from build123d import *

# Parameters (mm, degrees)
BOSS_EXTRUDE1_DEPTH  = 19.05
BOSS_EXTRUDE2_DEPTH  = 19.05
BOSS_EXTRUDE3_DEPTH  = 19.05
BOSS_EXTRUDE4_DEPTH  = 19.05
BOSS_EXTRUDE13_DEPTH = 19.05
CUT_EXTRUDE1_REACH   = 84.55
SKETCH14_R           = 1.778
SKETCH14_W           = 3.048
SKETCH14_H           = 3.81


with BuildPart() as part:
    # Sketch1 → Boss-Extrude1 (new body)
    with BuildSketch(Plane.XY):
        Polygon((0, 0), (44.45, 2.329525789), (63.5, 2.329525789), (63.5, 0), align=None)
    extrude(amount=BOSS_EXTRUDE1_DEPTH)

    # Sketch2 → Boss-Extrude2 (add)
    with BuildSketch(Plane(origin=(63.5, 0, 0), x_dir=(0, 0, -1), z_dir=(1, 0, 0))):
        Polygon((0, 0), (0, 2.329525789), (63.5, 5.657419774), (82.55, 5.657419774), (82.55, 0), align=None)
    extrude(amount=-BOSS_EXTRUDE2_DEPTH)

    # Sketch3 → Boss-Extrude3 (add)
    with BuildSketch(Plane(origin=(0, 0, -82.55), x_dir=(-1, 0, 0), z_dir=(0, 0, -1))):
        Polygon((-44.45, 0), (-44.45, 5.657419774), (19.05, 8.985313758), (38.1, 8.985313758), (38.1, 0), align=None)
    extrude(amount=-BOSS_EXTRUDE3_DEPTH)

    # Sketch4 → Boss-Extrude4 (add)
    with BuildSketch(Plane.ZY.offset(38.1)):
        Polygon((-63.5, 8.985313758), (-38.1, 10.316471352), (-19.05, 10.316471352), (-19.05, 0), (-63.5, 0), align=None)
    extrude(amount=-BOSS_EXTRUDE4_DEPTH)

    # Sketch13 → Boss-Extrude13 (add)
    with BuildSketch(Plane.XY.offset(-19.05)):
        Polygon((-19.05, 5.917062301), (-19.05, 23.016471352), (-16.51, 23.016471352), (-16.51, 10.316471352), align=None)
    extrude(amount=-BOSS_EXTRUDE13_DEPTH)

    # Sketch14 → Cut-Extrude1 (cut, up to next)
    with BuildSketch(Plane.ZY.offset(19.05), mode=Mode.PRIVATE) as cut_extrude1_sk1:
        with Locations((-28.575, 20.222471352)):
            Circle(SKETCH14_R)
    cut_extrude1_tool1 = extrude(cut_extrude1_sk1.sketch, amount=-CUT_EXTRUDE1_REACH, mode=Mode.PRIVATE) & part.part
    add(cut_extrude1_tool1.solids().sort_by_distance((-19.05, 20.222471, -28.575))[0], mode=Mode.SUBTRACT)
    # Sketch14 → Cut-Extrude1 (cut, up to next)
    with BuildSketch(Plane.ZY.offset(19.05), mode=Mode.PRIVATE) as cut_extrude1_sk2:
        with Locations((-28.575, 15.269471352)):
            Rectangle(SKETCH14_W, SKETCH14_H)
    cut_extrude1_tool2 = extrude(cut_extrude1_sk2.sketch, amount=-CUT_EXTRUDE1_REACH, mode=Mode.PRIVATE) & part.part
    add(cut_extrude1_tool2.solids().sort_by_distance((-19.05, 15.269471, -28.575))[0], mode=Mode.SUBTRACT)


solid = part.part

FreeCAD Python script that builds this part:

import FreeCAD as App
import Part
import Sketcher
from FreeCAD import Vector
Q = App.Units.Quantity

doc = App.newDocument("Part")
body = doc.addObject("PartDesign::Body", "Body")

sketch1 = doc.addObject("Sketcher::SketchObject", "Sketch")
body.addObject(sketch1)
sketch1.AttachmentSupport = (doc.XY_Plane, [""])
sketch1.MapMode = "FlatFace"
sketch1.addGeometry([
    Part.LineSegment(Vector(44.5, 2.3, 0), Vector(0, 0, 0)),
    Part.LineSegment(Vector(0, 0, 0), Vector(63.5, 0, 0)),
    Part.LineSegment(Vector(63.5, 0, 0), Vector(63.5, 2.3, 0)),
    Part.LineSegment(Vector(63.5, 2.3, 0), Vector(44.5, 2.3, 0)),
], False)
sketch1.addConstraint([
    Sketcher.Constraint("Coincident", 0, 2, 1, 1),
    Sketcher.Constraint("Coincident", 1, 2, 2, 1),
    Sketcher.Constraint("Coincident", 2, 2, 3, 1),
    Sketcher.Constraint("Coincident", 3, 2, 0, 1),
    Sketcher.Constraint("Horizontal", 1),
    Sketcher.Constraint("Vertical", 2),
    Sketcher.Constraint("Horizontal", 3),
    Sketcher.Constraint("Coincident", 0, 2, -1, 1),
    Sketcher.Constraint("DistanceX", 1, 1, 1, 2, Q("2.5 in")),
    Sketcher.Constraint("Angle", 0, Q("-177 deg")),
    Sketcher.Constraint("DistanceX", 3, 2, 3, 1, Q("0.75 in")),
])
pad1 = doc.addObject("PartDesign::Pad", "Pad")
body.addObject(pad1)
pad1.Profile = sketch1
pad1.Length = Q("0.75 in")

sketch2 = doc.addObject("Sketcher::SketchObject", "Sketch001")
body.addObject(sketch2)
sketch2.AttachmentSupport = (doc.YZ_Plane, [""])
sketch2.MapMode = "FlatFace"
sketch2.AttachmentOffset = App.Placement(Vector(0, 0, 2.5 * 25.4), App.Rotation())
sketch2.addGeometry([
    Part.LineSegment(Vector(2.3, 0, 0), Vector(0, 0, 0)),
    Part.LineSegment(Vector(0, 0, 0), Vector(0, -82.5, 0)),
    Part.LineSegment(Vector(0, -82.5, 0), Vector(5.7, -82.5, 0)),
    Part.LineSegment(Vector(5.7, -82.5, 0), Vector(5.7, -63.5, 0)),
    Part.LineSegment(Vector(5.7, -63.5, 0), Vector(2.3, 0, 0)),
], False)
sketch2.addConstraint([
    Sketcher.Constraint("Coincident", 0, 2, 1, 1),
    Sketcher.Constraint("Coincident", 1, 2, 2, 1),
    Sketcher.Constraint("Coincident", 2, 2, 3, 1),
    Sketcher.Constraint("Coincident", 3, 2, 4, 1),
    Sketcher.Constraint("Coincident", 4, 2, 0, 1),
    Sketcher.Constraint("Horizontal", 0),
    Sketcher.Constraint("Vertical", 1),
    Sketcher.Constraint("Horizontal", 2),
    Sketcher.Constraint("Vertical", 3),
    Sketcher.Constraint("Coincident", 0, 2, -1, 1),
    Sketcher.Constraint("Angle", 4, Q("93 deg")),
    Sketcher.Constraint("DistanceY", 1, 2, 1, 1, Q("3.25 in")),
    Sketcher.Constraint("DistanceY", 3, 1, 3, 2, Q("0.75 in")),
    Sketcher.Constraint("DistanceX", 2, 1, 2, 2, 5.65742),
])
pad2 = doc.addObject("PartDesign::Pad", "Pad001")
body.addObject(pad2)
pad2.Profile = sketch2
pad2.Length = Q("0.75 in")
pad2.Reversed = True

sketch3 = doc.addObject("Sketcher::SketchObject", "Sketch002")
body.addObject(sketch3)
sketch3.AttachmentSupport = (doc.XY_Plane, [""])
sketch3.MapMode = "FlatFace"
sketch3.AttachmentOffset = App.Placement(Vector(0, 0, -3.25 * 25.4), App.Rotation())
sketch3.addGeometry([
    Part.LineSegment(Vector(44, 6, 0), Vector(44, 0, 0)),
    Part.LineSegment(Vector(44, 0, 0), Vector(-38, 0, 0)),
    Part.LineSegment(Vector(-38, 0, 0), Vector(-38, 9, 0)),
    Part.LineSegment(Vector(-38, 9, 0), Vector(-19, 9, 0)),
    Part.LineSegment(Vector(-19, 9, 0), Vector(44, 6, 0)),
], False)
sketch3.addConstraint([
    Sketcher.Constraint("Coincident", 0, 2, 1, 1),
    Sketcher.Constraint("Coincident", 1, 2, 2, 1),
    Sketcher.Constraint("Coincident", 2, 2, 3, 1),
    Sketcher.Constraint("Coincident", 3, 2, 4, 1),
    Sketcher.Constraint("Coincident", 4, 2, 0, 1),
    Sketcher.Constraint("Vertical", 0),
    Sketcher.Constraint("Horizontal", 1),
    Sketcher.Constraint("Vertical", 2),
    Sketcher.Constraint("Horizontal", 3),
    Sketcher.Constraint("PointOnObject", 0, 2, -1),
    Sketcher.Constraint("Angle", 4, Q("-3 deg")),
    Sketcher.Constraint("DistanceX", 1, 2, 1, 1, Q("3.25 in")),
    Sketcher.Constraint("DistanceX", 3, 1, 3, 2, Q("0.75 in")),
    Sketcher.Constraint("DistanceX", 1, 2, -1, 1, Q("1.5 in")),
    Sketcher.Constraint("DistanceY", 0, 2, 0, 1, 5.65742),
])
pad3 = doc.addObject("PartDesign::Pad", "Pad002")
body.addObject(pad3)
pad3.Profile = sketch3
pad3.Length = Q("0.75 in")

sketch4 = doc.addObject("Sketcher::SketchObject", "Sketch003")
body.addObject(sketch4)
sketch4.AttachmentSupport = (doc.YZ_Plane, [""])
sketch4.MapMode = "FlatFace"
sketch4.AttachmentOffset = App.Placement(Vector(0, 0, -1.5 * 25.4), App.Rotation())
sketch4.addGeometry([
    Part.LineSegment(Vector(10, -38, 0), Vector(9, -64, 0)),
    Part.LineSegment(Vector(9, -64, 0), Vector(0, -64, 0)),
    Part.LineSegment(Vector(0, -64, 0), Vector(0, -19, 0)),
    Part.LineSegment(Vector(0, -19, 0), Vector(10, -19, 0)),
    Part.LineSegment(Vector(10, -19, 0), Vector(10, -38, 0)),
], False)
sketch4.addConstraint([
    Sketcher.Constraint("Coincident", 0, 2, 1, 1),
    Sketcher.Constraint("Coincident", 1, 2, 2, 1),
    Sketcher.Constraint("Coincident", 2, 2, 3, 1),
    Sketcher.Constraint("Coincident", 3, 2, 4, 1),
    Sketcher.Constraint("Coincident", 4, 2, 0, 1),
    Sketcher.Constraint("Horizontal", 1),
    Sketcher.Constraint("Vertical", 2),
    Sketcher.Constraint("Horizontal", 3),
    Sketcher.Constraint("Vertical", 4),
    Sketcher.Constraint("PointOnObject", 1, 2, -2),
    Sketcher.Constraint("Angle", 0, Q("-93 deg")),
    Sketcher.Constraint("DistanceY", 0, 2, 4, 2, Q("1 in")),
    Sketcher.Constraint("DistanceY", 2, 1, 2, 2, Q("1.75 in")),
    Sketcher.Constraint("DistanceY", 0, 2, -1, 1, Q("2.5 in")),
    Sketcher.Constraint("DistanceX", 3, 1, 3, 2, 10.316471),
])
pad4 = doc.addObject("PartDesign::Pad", "Pad003")
body.addObject(pad4)
pad4.Profile = sketch4
pad4.Length = Q("0.75 in")

sketch5 = doc.addObject("Sketcher::SketchObject", "Sketch004")
body.addObject(sketch5)
sketch5.AttachmentSupport = (doc.XY_Plane, [""])
sketch5.MapMode = "FlatFace"
sketch5.AttachmentOffset = App.Placement(Vector(0, 0, -0.75 * 25.4), App.Rotation())
sketch5.addGeometry([
    Part.LineSegment(Vector(-19.1, 23, 0), Vector(-19.1, 5.9, 0)),
    Part.LineSegment(Vector(-19.1, 5.9, 0), Vector(-16.5, 10.3, 0)),
    Part.LineSegment(Vector(-16.5, 10.3, 0), Vector(-16.5, 23, 0)),
    Part.LineSegment(Vector(-16.5, 23, 0), Vector(-19.1, 23, 0)),
], False)
sketch5.addConstraint([
    Sketcher.Constraint("Coincident", 0, 2, 1, 1),
    Sketcher.Constraint("Coincident", 1, 2, 2, 1),
    Sketcher.Constraint("Coincident", 2, 2, 3, 1),
    Sketcher.Constraint("Coincident", 3, 2, 0, 1),
    Sketcher.Constraint("Vertical", 0),
    Sketcher.Constraint("Vertical", 2),
    Sketcher.Constraint("Horizontal", 3),
    Sketcher.Constraint("DistanceX", 3, 2, 3, 1, Q("0.1 in")),
    Sketcher.Constraint("DistanceY", 2, 1, 2, 2, Q("0.5 in")),
    Sketcher.Constraint("Angle", 1, Q("60 deg")),
    Sketcher.Constraint("DistanceX", 0, 2, -1, 1, Q("0.75 in")),
    Sketcher.Constraint("DistanceY", -1, 1, 1, 2, 10.316471),
])
pad5 = doc.addObject("PartDesign::Pad", "Pad004")
body.addObject(pad5)
pad5.Profile = sketch5
pad5.Length = Q("0.75 in")
pad5.Reversed = True

sketch6 = doc.addObject("Sketcher::SketchObject", "Sketch005")
body.addObject(sketch6)
sketch6.AttachmentSupport = (doc.YZ_Plane, [""])
sketch6.MapMode = "FlatFace"
sketch6.AttachmentOffset = App.Placement(Vector(0, 0, -0.75 * 25.4), App.Rotation())
sketch6.addGeometry(Part.Circle(Vector(20.2, -28.6, 0), Vector(0, 0, 1), 1.8), False)
sketch6.addConstraint([
    Sketcher.Constraint("Diameter", 0, Q("0.14 in")),
    Sketcher.Constraint("DistanceY", 0, 3, -1, 1, Q("1.125 in")),
    Sketcher.Constraint("DistanceX", -1, 1, 0, 3, 20.222471),
])
pocket1 = doc.addObject("PartDesign::Pocket", "Pocket")
body.addObject(pocket1)
pocket1.Profile = sketch6
pocket1.Type = "UpToFirst"
pocket1.Reversed = True

sketch7 = doc.addObject("Sketcher::SketchObject", "Sketch006")
body.addObject(sketch7)
sketch7.AttachmentSupport = (doc.YZ_Plane, [""])
sketch7.MapMode = "FlatFace"
sketch7.AttachmentOffset = App.Placement(Vector(0, 0, -0.75 * 25.4), App.Rotation())
sketch7.addGeometry([
    Part.LineSegment(Vector(17.2, -30.1, 0), Vector(13.4, -30.1, 0)),
    Part.LineSegment(Vector(13.4, -30.1, 0), Vector(13.4, -27.1, 0)),
    Part.LineSegment(Vector(13.4, -27.1, 0), Vector(17.2, -27.1, 0)),
    Part.LineSegment(Vector(17.2, -27.1, 0), Vector(17.2, -30.1, 0)),
], False)
sketch7.addConstraint([
    Sketcher.Constraint("Coincident", 0, 2, 1, 1),
    Sketcher.Constraint("Coincident", 1, 2, 2, 1),
    Sketcher.Constraint("Coincident", 2, 2, 3, 1),
    Sketcher.Constraint("Coincident", 3, 2, 0, 1),
    Sketcher.Constraint("Horizontal", 0),
    Sketcher.Constraint("Vertical", 1),
    Sketcher.Constraint("Horizontal", 2),
    Sketcher.Constraint("Vertical", 3),
    Sketcher.Constraint("DistanceX", 0, 2, 0, 1, Q("0.15 in")),
    Sketcher.Constraint("DistanceY", 1, 1, 1, 2, Q("0.12 in")),
    Sketcher.Constraint("DistanceY", 0, 2, -1, 1, Q("1.185 in")),
    Sketcher.Constraint("DistanceX", -1, 1, 0, 2, 13.364471),
])
pocket2 = doc.addObject("PartDesign::Pocket", "Pocket001")
body.addObject(pocket2)
pocket2.Profile = sketch7
pocket2.Type = "UpToFirst"
pocket2.Reversed = True

doc.recompute()
